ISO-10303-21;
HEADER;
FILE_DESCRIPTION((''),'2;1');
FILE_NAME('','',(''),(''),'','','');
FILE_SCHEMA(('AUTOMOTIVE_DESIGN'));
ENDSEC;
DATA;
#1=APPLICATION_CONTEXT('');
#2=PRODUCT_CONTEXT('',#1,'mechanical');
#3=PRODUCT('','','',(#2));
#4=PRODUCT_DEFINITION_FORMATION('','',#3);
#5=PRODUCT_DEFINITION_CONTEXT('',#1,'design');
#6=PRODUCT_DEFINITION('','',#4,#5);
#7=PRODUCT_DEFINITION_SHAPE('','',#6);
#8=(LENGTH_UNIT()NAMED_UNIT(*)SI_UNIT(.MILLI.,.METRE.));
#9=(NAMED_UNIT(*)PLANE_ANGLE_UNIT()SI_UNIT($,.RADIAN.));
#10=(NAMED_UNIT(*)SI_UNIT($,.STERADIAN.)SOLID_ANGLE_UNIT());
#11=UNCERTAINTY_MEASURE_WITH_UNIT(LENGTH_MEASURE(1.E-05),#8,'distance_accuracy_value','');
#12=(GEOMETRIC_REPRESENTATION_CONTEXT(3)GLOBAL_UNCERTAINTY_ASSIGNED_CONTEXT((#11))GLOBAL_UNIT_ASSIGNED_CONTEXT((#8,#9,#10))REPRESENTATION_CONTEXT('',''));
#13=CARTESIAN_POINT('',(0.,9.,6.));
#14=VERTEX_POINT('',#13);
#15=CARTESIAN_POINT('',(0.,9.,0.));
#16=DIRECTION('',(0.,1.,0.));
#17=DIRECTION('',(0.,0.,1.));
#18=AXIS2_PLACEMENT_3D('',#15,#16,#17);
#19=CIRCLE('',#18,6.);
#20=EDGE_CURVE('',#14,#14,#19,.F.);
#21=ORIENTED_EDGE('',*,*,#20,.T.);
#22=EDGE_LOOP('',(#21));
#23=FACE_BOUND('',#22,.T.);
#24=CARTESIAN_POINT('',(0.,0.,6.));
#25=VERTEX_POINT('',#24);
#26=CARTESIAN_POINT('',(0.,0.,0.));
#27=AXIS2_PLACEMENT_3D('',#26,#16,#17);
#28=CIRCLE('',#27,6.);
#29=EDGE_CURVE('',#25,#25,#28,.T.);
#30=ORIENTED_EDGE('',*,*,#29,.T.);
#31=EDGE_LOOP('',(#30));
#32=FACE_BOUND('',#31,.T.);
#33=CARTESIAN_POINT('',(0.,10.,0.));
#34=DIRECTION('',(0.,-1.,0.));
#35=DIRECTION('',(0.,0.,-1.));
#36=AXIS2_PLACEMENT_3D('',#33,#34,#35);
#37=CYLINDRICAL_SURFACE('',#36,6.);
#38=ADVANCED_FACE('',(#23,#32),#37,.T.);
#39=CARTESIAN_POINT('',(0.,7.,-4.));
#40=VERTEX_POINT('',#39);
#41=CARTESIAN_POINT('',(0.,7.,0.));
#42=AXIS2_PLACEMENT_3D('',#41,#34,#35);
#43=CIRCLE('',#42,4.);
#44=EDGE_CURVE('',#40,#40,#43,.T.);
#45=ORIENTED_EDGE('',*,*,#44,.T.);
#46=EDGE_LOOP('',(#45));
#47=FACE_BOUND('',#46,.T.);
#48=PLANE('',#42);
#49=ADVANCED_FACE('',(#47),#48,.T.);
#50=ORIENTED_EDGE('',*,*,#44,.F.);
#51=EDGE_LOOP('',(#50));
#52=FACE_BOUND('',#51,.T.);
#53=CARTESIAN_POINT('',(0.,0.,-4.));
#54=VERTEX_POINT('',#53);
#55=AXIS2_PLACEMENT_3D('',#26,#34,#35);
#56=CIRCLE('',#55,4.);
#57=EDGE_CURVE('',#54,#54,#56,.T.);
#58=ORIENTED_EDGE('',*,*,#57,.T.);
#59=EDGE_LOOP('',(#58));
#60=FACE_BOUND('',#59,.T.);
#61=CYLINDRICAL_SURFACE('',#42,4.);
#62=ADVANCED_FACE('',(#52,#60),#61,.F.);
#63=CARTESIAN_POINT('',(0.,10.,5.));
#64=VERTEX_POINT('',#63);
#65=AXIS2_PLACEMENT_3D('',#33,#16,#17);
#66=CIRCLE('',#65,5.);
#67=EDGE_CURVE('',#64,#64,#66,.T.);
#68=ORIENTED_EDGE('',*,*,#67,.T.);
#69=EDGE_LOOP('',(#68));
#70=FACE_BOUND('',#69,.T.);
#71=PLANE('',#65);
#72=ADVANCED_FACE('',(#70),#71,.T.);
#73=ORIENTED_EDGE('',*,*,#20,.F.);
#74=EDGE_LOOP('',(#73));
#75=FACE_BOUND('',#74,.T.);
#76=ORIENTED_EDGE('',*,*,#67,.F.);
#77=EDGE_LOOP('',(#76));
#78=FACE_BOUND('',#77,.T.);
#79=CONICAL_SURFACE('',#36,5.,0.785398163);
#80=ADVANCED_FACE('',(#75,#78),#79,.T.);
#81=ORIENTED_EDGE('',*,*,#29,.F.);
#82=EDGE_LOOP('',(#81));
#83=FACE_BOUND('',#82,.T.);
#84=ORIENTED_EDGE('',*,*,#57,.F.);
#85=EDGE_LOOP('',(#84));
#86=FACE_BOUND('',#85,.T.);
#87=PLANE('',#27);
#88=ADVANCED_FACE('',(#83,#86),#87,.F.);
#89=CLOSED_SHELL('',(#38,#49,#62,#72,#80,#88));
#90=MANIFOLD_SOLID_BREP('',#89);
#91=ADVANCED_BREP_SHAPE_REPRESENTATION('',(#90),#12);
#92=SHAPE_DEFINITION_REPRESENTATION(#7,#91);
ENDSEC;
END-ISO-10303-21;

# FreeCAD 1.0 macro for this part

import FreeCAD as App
import Part
import Sketcher


def edges_at(feature, points):
    """Names of the edges that pass closest to the given points."""
    edges = feature.Shape.Edges
    near = lambda p: min(range(len(edges)), key=lambda i: edges[i].distToShape(Part.Vertex(*p))[0])
    return sorted({f"Edge{near(p) + 1}" for p in points})

doc = App.newDocument("Part")
params = doc.addObject("Spreadsheet::Sheet", "Params")
for row, (alias, value) in enumerate([
    ("sketch1_diameter", "12 mm"),
    ("pad1_length", "10 mm"),
    ("chamfer_size", "1 mm"),
    ("sketch2_diameter", "8 mm"),
    ("pocket1_length", "7 mm"),
], start=1):
    params.set(f"A{row}", alias)
    params.set(f"B{row}", "=" + value)
    params.setAlias(f"B{row}", alias)

body = doc.addObject("PartDesign::Body", "Body")

# Sketch on XZ plane
sketch1 = body.newObject("Sketcher::SketchObject", "Sketch")
sketch1.AttachmentSupport = (doc.getObject("XZ_Plane"), [""])
sketch1.MapMode = "FlatFace"
sketch1.addGeometry(Part.Circle(App.Vector(0, 0, 0), App.Vector(0, 0, 1), 6), False)
sketch1.addConstraint([
    Sketcher.Constraint("Coincident", 0, 3, -1, 1),
    Sketcher.Constraint("Diameter", 0, 12.0),
])
sketch1.setExpression("Constraints[1]", "Params.sketch1_diameter")
pad1 = body.newObject("PartDesign::Pad", "Pad")
pad1.Profile = sketch1
pad1.setExpression("Length", "Params.pad1_length")
pad1.Reversed = True
doc.recompute()

chamfer = body.newObject("PartDesign::Chamfer", "Chamfer")
chamfer.Base = (pad1, edges_at(pad1, [(-6, 10, 0)]))
chamfer.setExpression("Size", "Params.chamfer_size")

# Sketch on XZ plane
sketch2 = body.newObject("Sketcher::SketchObject", "Sketch001")
sketch2.AttachmentSupport = (doc.getObject("XZ_Plane"), [""])
sketch2.MapMode = "FlatFace"
sketch2.addGeometry(Part.Circle(App.Vector(0, 0, 0), App.Vector(0, 0, 1), 4), False)
sketch2.addConstraint([
    Sketcher.Constraint("Coincident", 0, 3, -1, 1),
    Sketcher.Constraint("Diameter", 0, 8.0),
])
sketch2.setExpression("Constraints[1]", "Params.sketch2_diameter")
pocket1 = body.newObject("PartDesign::Pocket", "Pocket")
pocket1.Profile = sketch2
pocket1.setExpression("Length", "Params.pocket1_length")

doc.recompute()
